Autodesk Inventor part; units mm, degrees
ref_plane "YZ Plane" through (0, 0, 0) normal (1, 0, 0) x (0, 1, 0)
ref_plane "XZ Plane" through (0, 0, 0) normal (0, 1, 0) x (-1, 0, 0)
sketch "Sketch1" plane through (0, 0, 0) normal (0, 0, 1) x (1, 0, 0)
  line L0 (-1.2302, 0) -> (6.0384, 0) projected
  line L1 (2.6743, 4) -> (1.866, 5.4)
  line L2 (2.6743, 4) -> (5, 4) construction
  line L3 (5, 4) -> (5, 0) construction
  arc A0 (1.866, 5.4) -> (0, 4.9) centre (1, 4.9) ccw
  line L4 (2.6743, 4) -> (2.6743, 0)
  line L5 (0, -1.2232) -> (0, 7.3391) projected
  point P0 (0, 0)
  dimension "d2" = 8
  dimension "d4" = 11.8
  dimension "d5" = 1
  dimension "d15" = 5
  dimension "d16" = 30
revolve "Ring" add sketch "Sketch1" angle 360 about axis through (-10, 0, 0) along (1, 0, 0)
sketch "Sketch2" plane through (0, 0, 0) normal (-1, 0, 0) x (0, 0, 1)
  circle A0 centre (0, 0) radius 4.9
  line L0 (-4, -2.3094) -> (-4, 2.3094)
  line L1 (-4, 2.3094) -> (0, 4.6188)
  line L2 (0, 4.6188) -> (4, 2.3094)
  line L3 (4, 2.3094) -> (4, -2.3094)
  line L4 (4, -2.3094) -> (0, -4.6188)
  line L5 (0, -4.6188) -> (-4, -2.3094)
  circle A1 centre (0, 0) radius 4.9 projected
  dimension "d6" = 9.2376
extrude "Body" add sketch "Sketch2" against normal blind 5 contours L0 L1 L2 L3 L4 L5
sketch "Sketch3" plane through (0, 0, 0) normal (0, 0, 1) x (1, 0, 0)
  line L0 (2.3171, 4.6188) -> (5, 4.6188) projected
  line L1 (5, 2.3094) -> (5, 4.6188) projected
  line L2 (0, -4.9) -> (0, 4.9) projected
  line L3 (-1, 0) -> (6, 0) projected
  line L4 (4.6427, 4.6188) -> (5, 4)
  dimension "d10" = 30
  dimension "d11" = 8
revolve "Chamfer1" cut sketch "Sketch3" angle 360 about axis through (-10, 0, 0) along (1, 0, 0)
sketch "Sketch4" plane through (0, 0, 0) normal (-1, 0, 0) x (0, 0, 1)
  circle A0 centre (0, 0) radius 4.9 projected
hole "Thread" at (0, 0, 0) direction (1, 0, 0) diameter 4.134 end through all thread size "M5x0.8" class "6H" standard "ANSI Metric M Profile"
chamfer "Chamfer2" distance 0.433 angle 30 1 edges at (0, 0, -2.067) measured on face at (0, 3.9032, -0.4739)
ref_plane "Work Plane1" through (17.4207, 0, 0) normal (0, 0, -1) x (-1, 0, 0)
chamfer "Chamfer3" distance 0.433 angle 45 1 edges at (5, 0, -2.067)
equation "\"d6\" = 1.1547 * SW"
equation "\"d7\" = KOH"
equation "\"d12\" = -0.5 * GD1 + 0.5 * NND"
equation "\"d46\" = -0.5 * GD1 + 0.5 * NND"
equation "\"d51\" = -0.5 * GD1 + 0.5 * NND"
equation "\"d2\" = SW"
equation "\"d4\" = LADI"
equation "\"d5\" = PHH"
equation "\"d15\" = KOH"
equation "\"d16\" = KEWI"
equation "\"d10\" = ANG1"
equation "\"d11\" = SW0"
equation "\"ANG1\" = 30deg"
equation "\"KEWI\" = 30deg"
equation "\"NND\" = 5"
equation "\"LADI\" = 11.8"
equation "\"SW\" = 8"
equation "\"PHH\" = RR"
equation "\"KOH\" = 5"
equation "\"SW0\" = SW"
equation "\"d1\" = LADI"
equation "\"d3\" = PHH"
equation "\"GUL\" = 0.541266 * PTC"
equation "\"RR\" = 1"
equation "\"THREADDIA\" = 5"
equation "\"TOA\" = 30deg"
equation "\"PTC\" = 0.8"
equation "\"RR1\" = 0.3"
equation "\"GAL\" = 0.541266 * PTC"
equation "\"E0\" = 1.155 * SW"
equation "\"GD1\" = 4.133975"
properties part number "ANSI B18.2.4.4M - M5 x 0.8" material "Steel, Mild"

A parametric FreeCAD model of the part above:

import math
import FreeCAD as App
import Part
import Sketcher
from FreeCAD import Vector
Q = App.Units.Quantity


def edges_at(feature, points):
    """Names of the edges that pass closest to the given points."""
    edges = feature.Shape.Edges
    near = lambda p: min(range(len(edges)), key=lambda i: edges[i].distToShape(Part.Vertex(*p))[0])
    return sorted({f"Edge{near(p) + 1}" for p in points})

doc = App.newDocument("Part")
body = doc.addObject("PartDesign::Body", "Body")

# Sketch on XY plane
sketch1 = doc.addObject("Sketcher::SketchObject", "Sketch")
body.addObject(sketch1)
sketch1.AttachmentSupport = (doc.XY_Plane, [""])
sketch1.MapMode = "FlatFace"
sketch1.addGeometry([
    Part.LineSegment(Vector(0, 4.9, 0), Vector(0, 0, 0)),  # 0
    Part.LineSegment(Vector(0, 0, 0), Vector(2.6743, 0, 0)),  # 1
    Part.LineSegment(Vector(2.6743, 0, 0), Vector(2.6743, 4, 0)),  # 2
    Part.LineSegment(Vector(2.6743, 4, 0), Vector(1.866, 5.4, 0)),  # 3
    Part.ArcOfCircle(Part.Circle(Vector(1, 4.9, 0), Vector(0, 0, 1), 0.999978), math.radians(30.000728), math.radians(180)),  # 4
], False)
sketch1.addConstraint([
    Sketcher.Constraint("Coincident", 0, 2, 1, 1),
    Sketcher.Constraint("Coincident", 1, 2, 2, 1),
    Sketcher.Constraint("Coincident", 2, 2, 3, 1),
    Sketcher.Constraint("Tangent", 3, 2, 4, 1),
    Sketcher.Constraint("Tangent", 4, 2, 0, 1),
    Sketcher.Constraint("Vertical", 0),
    Sketcher.Constraint("Horizontal", 1),
    Sketcher.Constraint("Vertical", 2),
    Sketcher.Constraint("Coincident", 0, 2, -1, 1),
    Sketcher.Constraint("Radius", 4, 1.0),
    Sketcher.Constraint("DistanceY", 2, 1, 2, 2, 4.0),
    Sketcher.Constraint("Angle", 3, Q("120.0003 deg")),
    Sketcher.Constraint("DistanceY", 0, 2, 0, 1, 4.9),
])
revolution = doc.addObject("PartDesign::Revolution", "Revolution")
body.addObject(revolution)
revolution.Profile = sketch1
revolution.ReferenceAxis = (sketch1, ["H_Axis"])
revolution.Angle = 360

# Sketch on YZ plane
sketch2 = doc.addObject("Sketcher::SketchObject", "Sketch001")
body.addObject(sketch2)
sketch2.AttachmentSupport = (doc.YZ_Plane, [""])
sketch2.MapMode = "FlatFace"
sketch2.addGeometry([
    Part.LineSegment(Vector(2.3094, -4, 0), Vector(-2.3094, -4, 0)),  # 0
    Part.LineSegment(Vector(-2.3094, -4, 0), Vector(-4.6188, 0, 0)),  # 1
    Part.LineSegment(Vector(-4.6188, 0, 0), Vector(-2.3094, 4, 0)),  # 2
    Part.LineSegment(Vector(-2.3094, 4, 0), Vector(2.3094, 4, 0)),  # 3
    Part.LineSegment(Vector(2.3094, 4, 0), Vector(4.6188, 0, 0)),  # 4
    Part.LineSegment(Vector(4.6188, 0, 0), Vector(2.3094, -4, 0)),  # 5
], False)
sketch2.addConstraint([
    Sketcher.Constraint("Coincident", 0, 2, 1, 1),
    Sketcher.Constraint("Coincident", 1, 2, 2, 1),
    Sketcher.Constraint("Coincident", 2, 2, 3, 1),
    Sketcher.Constraint("Coincident", 3, 2, 4, 1),
    Sketcher.Constraint("Coincident", 4, 2, 5, 1),
    Sketcher.Constraint("Coincident", 5, 2, 0, 1),
    Sketcher.Constraint("Horizontal", 0),
    Sketcher.Constraint("Horizontal", 3),
    Sketcher.Constraint("Symmetric", 0, 2, 3, 2, -1, 1),
    Sketcher.Constraint("Symmetric", 1, 2, 4, 2, -1, 1),
    Sketcher.Constraint("PointOnObject", 1, 2, -1),
    Sketcher.Constraint("Parallel", 2, 5),
    Sketcher.Constraint("Vertical", 0, 2, 2, 2),
    Sketcher.Constraint("Angle", 1, Q("120 deg")),
    Sketcher.Constraint("DistanceY", 0, 2, -1, 1, 4.0),
    Sketcher.Constraint("DistanceX", 1, 2, 4, 2, 9.2376),
])
pad1 = doc.addObject("PartDesign::Pad", "Pad")
body.addObject(pad1)
pad1.Profile = sketch2
pad1.Length = 5

# Sketch on XY plane
sketch3 = doc.addObject("Sketcher::SketchObject", "Sketch002")
body.addObject(sketch3)
sketch3.AttachmentSupport = (doc.XY_Plane, [""])
sketch3.MapMode = "FlatFace"
sketch3.addGeometry([
    Part.LineSegment(Vector(5, 4.6188, 0), Vector(4.6427, 4.6188, 0)),
    Part.LineSegment(Vector(4.6427, 4.6188, 0), Vector(5, 4, 0)),
    Part.LineSegment(Vector(5, 4, 0), Vector(5, 4.6188, 0)),
], False)
sketch3.addConstraint([
    Sketcher.Constraint("Coincident", 0, 2, 1, 1),
    Sketcher.Constraint("Coincident", 1, 2, 2, 1),
    Sketcher.Constraint("Coincident", 2, 2, 0, 1),
    Sketcher.Constraint("Horizontal", 0),
    Sketcher.Constraint("Vertical", 2),
    Sketcher.Constraint("DistanceX", -1, 1, 1, 2, 5.0),
    Sketcher.Constraint("DistanceY", -1, 1, 1, 2, 4.0),
    Sketcher.Constraint("DistanceX", 0, 2, 0, 1, 0.3573),
    Sketcher.Constraint("DistanceY", 2, 1, 2, 2, 0.6188),
])
groove = doc.addObject("PartDesign::Groove", "Groove")
body.addObject(groove)
groove.Profile = sketch3
groove.ReferenceAxis = (sketch3, ["H_Axis"])
groove.Angle = 360

# Sketch on YZ plane
sketch4 = doc.addObject("Sketcher::SketchObject", "Sketch003")
body.addObject(sketch4)
sketch4.AttachmentSupport = (doc.YZ_Plane, [""])
sketch4.MapMode = "FlatFace"
sketch4.addGeometry(Part.Circle(Vector(0, 0, 0), Vector(0, 0, 1), 2.067), False)
sketch4.addConstraint([
    Sketcher.Constraint("Coincident", 0, 3, -1, 1),
    Sketcher.Constraint("Diameter", 0, 4.134),
])
doc.recompute()
hole = doc.addObject("PartDesign::Hole", "Hole")
body.addObject(hole)
hole.Profile = sketch4
hole.ThreadType = "None"
hole.Diameter = 4.134
hole.DepthType = "ThroughAll"
hole.Reversed = True
doc.recompute()

chamfer = doc.addObject("PartDesign::Chamfer", "Chamfer")
body.addObject(chamfer)
chamfer.Base = (hole, edges_at(hole, [(0, 0, -2.067)]))
chamfer.ChamferType = "Distance and Angle"
chamfer.Size = 0.433
chamfer.Angle = 30
doc.recompute()

chamfer2 = doc.addObject("PartDesign::Chamfer", "Chamfer001")
body.addObject(chamfer2)
chamfer2.Base = (chamfer, edges_at(chamfer, [(5, 0, -2.067)]))
chamfer2.Size = 0.433

doc.recompute()
